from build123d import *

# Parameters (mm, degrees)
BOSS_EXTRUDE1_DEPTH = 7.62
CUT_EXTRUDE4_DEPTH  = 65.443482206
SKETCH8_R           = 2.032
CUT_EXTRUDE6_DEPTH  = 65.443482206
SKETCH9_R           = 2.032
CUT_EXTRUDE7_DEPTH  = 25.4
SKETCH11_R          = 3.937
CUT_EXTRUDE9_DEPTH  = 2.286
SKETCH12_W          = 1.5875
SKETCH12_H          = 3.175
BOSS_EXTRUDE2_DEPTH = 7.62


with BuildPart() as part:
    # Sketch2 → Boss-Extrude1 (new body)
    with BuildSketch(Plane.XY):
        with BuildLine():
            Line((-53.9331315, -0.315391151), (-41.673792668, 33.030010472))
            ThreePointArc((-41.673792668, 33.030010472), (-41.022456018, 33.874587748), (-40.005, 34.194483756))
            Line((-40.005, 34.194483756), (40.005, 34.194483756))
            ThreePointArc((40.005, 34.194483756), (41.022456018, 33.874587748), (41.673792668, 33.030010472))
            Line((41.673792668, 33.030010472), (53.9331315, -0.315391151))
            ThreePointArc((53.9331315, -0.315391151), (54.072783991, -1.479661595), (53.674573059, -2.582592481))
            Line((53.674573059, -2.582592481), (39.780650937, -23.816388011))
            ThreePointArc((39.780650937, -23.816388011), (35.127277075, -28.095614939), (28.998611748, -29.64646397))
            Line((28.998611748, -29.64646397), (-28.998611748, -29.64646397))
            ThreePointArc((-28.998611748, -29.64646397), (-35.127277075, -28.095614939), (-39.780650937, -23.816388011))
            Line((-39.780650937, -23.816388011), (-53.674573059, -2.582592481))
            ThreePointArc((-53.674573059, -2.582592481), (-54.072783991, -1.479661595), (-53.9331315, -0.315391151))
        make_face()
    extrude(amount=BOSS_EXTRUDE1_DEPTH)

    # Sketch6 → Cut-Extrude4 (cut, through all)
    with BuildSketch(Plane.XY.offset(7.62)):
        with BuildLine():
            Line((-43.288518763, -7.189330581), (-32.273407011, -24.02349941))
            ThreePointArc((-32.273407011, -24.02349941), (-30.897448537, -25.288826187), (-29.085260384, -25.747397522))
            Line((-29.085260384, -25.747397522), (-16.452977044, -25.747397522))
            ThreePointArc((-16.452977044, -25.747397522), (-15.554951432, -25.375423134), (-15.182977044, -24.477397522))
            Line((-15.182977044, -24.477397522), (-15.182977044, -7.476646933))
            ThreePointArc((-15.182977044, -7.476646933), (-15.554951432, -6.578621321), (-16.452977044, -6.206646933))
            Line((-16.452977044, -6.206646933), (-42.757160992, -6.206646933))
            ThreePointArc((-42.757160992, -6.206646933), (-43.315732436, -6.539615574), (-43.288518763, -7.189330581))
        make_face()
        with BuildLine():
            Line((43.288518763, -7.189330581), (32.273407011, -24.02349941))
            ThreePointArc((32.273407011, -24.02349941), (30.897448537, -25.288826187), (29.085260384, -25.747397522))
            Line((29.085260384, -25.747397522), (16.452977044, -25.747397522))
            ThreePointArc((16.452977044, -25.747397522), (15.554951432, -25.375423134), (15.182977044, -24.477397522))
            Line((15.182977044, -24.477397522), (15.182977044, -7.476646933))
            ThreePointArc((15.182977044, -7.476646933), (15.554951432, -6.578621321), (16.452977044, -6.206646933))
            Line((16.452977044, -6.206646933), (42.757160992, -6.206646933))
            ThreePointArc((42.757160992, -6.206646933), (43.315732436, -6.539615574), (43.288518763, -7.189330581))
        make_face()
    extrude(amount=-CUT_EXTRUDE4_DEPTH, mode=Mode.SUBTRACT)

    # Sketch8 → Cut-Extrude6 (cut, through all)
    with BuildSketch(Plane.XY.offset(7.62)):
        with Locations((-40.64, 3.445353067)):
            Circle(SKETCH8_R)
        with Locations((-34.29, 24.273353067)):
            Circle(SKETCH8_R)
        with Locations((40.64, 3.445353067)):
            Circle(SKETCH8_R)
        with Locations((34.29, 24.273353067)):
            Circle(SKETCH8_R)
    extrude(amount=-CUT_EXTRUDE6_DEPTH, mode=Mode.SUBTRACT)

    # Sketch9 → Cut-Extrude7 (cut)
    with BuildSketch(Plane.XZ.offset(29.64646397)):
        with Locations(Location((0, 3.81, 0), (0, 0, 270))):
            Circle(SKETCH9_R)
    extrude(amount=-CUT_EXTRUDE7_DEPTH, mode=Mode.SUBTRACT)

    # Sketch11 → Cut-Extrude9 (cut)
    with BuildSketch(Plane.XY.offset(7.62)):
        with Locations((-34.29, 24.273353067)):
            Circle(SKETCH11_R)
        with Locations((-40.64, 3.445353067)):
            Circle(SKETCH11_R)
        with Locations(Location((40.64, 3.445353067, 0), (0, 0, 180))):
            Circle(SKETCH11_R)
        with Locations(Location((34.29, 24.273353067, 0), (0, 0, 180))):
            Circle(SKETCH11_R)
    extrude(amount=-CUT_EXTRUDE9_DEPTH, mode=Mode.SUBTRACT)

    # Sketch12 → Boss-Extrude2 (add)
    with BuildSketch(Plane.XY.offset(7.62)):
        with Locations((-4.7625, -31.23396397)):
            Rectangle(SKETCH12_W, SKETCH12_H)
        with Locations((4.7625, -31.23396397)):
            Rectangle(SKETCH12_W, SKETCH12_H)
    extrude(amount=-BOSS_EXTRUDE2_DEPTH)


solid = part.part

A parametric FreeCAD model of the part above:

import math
import FreeCAD as App
import Part
import Sketcher
from FreeCAD import Vector
Q = App.Units.Quantity

doc = App.newDocument("Part")
body = doc.addObject("PartDesign::Body", "Body")

# Sketch on XY plane
sketch1 = body.newObject("Sketcher::SketchObject", "Sketch")
sketch1.AttachmentSupport = (doc.getObject("XY_Plane"), [""])
sketch1.MapMode = "FlatFace"
sketch1.addGeometry([
    Part.LineSegment(Vector(-41.673793, 33.03001, 0), Vector(-53.933132, -0.315391, 0)),  # 0
    Part.ArcOfCircle(Part.Circle(Vector(-51.549142, -1.191858, 0), Vector(0, 0, 1), 2.54), math.radians(159.814197), math.radians(213.197951)),  # 1
    Part.LineSegment(Vector(-53.674573, -2.582592, 0), Vector(-39.780651, -23.816388, 0)),  # 2
    Part.ArcOfCircle(Part.Circle(Vector(-28.998612, -16.76137, 0), Vector(0, 0, 1), 12.885094), math.radians(-146.802049), math.radians(-90)),  # 3
    Part.LineSegment(Vector(-28.998612, -29.646464, 0), Vector(28.998612, -29.646464, 0)),  # 4
    Part.ArcOfCircle(Part.Circle(Vector(28.998612, -16.76137, 0), Vector(0, 0, 1), 12.885094), math.radians(-90), math.radians(-33.197951)),  # 5
    Part.LineSegment(Vector(39.780651, -23.816388, 0), Vector(53.674573, -2.582592, 0)),  # 6
    Part.ArcOfCircle(Part.Circle(Vector(51.549142, -1.191858, 0), Vector(0, 0, 1), 2.54), math.radians(-33.197951), math.radians(20.185803)),  # 7
    Part.LineSegment(Vector(53.933132, -0.315391, 0), Vector(41.673793, 33.03001, 0)),  # 8
    Part.ArcOfCircle(Part.Circle(Vector(40.005, 32.416484, 0), Vector(0, 0, 1), 1.778), math.radians(20.185803), math.radians(90)),  # 9
    Part.LineSegment(Vector(40.005, 34.194484, 0), Vector(-40.005, 34.194484, 0)),  # 10
    Part.ArcOfCircle(Part.Circle(Vector(-40.005, 32.416484, 0), Vector(0, 0, 1), 1.778), math.radians(90), math.radians(159.814197)),  # 11
], False)
sketch1.addConstraint([
    Sketcher.Constraint("Tangent", 0, 2, 1, 1),
    Sketcher.Constraint("Tangent", 1, 2, 2, 1),
    Sketcher.Constraint("Tangent", 2, 2, 3, 1),
    Sketcher.Constraint("Tangent", 3, 2, 4, 1),
    Sketcher.Constraint("Tangent", 4, 2, 5, 1),
    Sketcher.Constraint("Tangent", 5, 2, 6, 1),
    Sketcher.Constraint("Tangent", 6, 2, 7, 1),
    Sketcher.Constraint("Tangent", 7, 2, 8, 1),
    Sketcher.Constraint("Tangent", 8, 2, 9, 1),
    Sketcher.Constraint("Tangent", 9, 2, 10, 1),
    Sketcher.Constraint("Tangent", 10, 2, 11, 1),
    Sketcher.Constraint("Tangent", 11, 2, 0, 1),
    Sketcher.Constraint("Horizontal", 4),
    Sketcher.Constraint("Horizontal", 10),
    Sketcher.Constraint("Equal", 3, 5),
    Sketcher.Constraint("Equal", 1, 7),
    Sketcher.Constraint("Equal", 9, 11),
    Sketcher.Constraint("Symmetric", 1, 3, 7, 3, -2),
    Sketcher.Constraint("Horizontal", 2, 2, 5, 2),
    Sketcher.Constraint("Horizontal", 0, 2, 7, 2),
    Sketcher.Constraint("Radius", 1, Q("0.1 in")),
    Sketcher.Constraint("Radius", 9, Q("0.07 in")),
    Sketcher.Constraint("DistanceX", 10, 2, 10, 1, Q("3.15 in")),
    Sketcher.Constraint("Radius", 3, Q("12.885094 mm")),
    Sketcher.Constraint("DistanceY", 1, 2, 0, 2, Q("2.267201 mm")),
    Sketcher.Constraint("DistanceY", 7, 2, 8, 2, Q("33.345402 mm")),
    Sketcher.Constraint("DistanceX", 4, 1, 4, 2, Q("57.997223 mm")),
    Sketcher.Constraint("DistanceX", 1, 3, -1, 1, Q("51.549142 mm")),
    Sketcher.Constraint("DistanceY", 3, 3, -1, 1, Q("16.76137 mm")),
])
pad1 = body.newObject("PartDesign::Pad", "Pad")
pad1.Profile = sketch1
pad1.Length = Q("0.3 in")

# Sketch on XY plane
sketch2 = body.newObject("Sketcher::SketchObject", "Sketch001")
sketch2.AttachmentSupport = (doc.getObject("XY_Plane"), [""])
sketch2.MapMode = "FlatFace"
sketch2.AttachmentOffset = App.Placement(Vector(0, 0, 0.3 * 25.4), App.Rotation())
sketch2.addGeometry([
    Part.LineSegment(Vector(-43.288519, -7.189331, 0), Vector(-32.273407, -24.023499, 0)),  # 0
    Part.ArcOfCircle(Part.Circle(Vector(-29.08526, -21.937398, 0), Vector(0, 0, 1), 3.81), math.radians(-146.802049), math.radians(-90)),  # 1
    Part.LineSegment(Vector(-29.08526, -25.747398, 0), Vector(-16.452977, -25.747398, 0)),  # 2
    Part.ArcOfCircle(Part.Circle(Vector(-16.452977, -24.477398, 0), Vector(0, 0, 1), 1.27), math.radians(-90), math.radians(0)),  # 3
    Part.LineSegment(Vector(-15.182977, -24.477398, 0), Vector(-15.182977, -7.476647, 0)),  # 4
    Part.ArcOfCircle(Part.Circle(Vector(-16.452977, -7.476647, 0), Vector(0, 0, 1), 1.27), math.radians(0), math.radians(90)),  # 5
    Part.LineSegment(Vector(-16.452977, -6.206647, 0), Vector(-42.757161, -6.206647, 0)),  # 6
    Part.ArcOfCircle(Part.Circle(Vector(-42.757161, -6.841647, 0), Vector(0, 0, 1), 0.635), math.radians(90), math.radians(213.197951)),  # 7
    Part.LineSegment(Vector(32.273407, -24.023499, 0), Vector(43.288519, -7.189331, 0)),  # 8
    Part.ArcOfCircle(Part.Circle(Vector(42.757161, -6.841647, 0), Vector(0, 0, 1), 0.635), math.radians(-33.197951), math.radians(90)),  # 9
    Part.LineSegment(Vector(42.757161, -6.206647, 0), Vector(16.452977, -6.206647, 0)),  # 10
    Part.ArcOfCircle(Part.Circle(Vector(16.452977, -7.476647, 0), Vector(0, 0, 1), 1.27), math.radians(90), math.radians(180)),  # 11
    Part.LineSegment(Vector(15.182977, -7.476647, 0), Vector(15.182977, -24.477398, 0)),  # 12
    Part.ArcOfCircle(Part.Circle(Vector(16.452977, -24.477398, 0), Vector(0, 0, 1), 1.27), math.radians(180), math.radians(270)),  # 13
    Part.LineSegment(Vector(16.452977, -25.747398, 0), Vector(29.08526, -25.747398, 0)),  # 14
    Part.ArcOfCircle(Part.Circle(Vector(29.08526, -21.937398, 0), Vector(0, 0, 1), 3.81), math.radians(-90), math.radians(-33.197951)),  # 15
], False)
sketch2.addConstraint([
    Sketcher.Constraint("Tangent", 0, 2, 1, 1),
    Sketcher.Constraint("Tangent", 1, 2, 2, 1),
    Sketcher.Constraint("Tangent", 2, 2, 3, 1),
    Sketcher.Constraint("Tangent", 3, 2, 4, 1),
    Sketcher.Constraint("Tangent", 4, 2, 5, 1),
    Sketcher.Constraint("Tangent", 5, 2, 6, 1),
    Sketcher.Constraint("Tangent", 6, 2, 7, 1),
    Sketcher.Constraint("Tangent", 7, 2, 0, 1),
    Sketcher.Constraint("Tangent", 8, 2, 9, 1),
    Sketcher.Constraint("Tangent", 9, 2, 10, 1),
    Sketcher.Constraint("Tangent", 10, 2, 11, 1),
    Sketcher.Constraint("Tangent", 11, 2, 12, 1),
    Sketcher.Constraint("Tangent", 12, 2, 13, 1),
    Sketcher.Constraint("Tangent", 13, 2, 14, 1),
    Sketcher.Constraint("Tangent", 14, 2, 15, 1),
    Sketcher.Constraint("Tangent", 15, 2, 8, 1),
    Sketcher.Constraint("Horizontal", 2),
    Sketcher.Constraint("Vertical", 4),
    Sketcher.Constraint("Horizontal", 6),
    Sketcher.Constraint("Horizontal", 10),
    Sketcher.Constraint("Vertical", 12),
    Sketcher.Constraint("Horizontal", 14),
    Sketcher.Constraint("Equal", 3, 5),
    Sketcher.Constraint("Equal", 7, 9),
    Sketcher.Constraint("Equal", 5, 11),
    Sketcher.Constraint("Equal", 11, 13),
    Sketcher.Constraint("Equal", 1, 15),
    Sketcher.Constraint("Symmetric", 7, 3, 9, 3, -2),
    Sketcher.Constraint("Symmetric", 3, 3, 13, 3, -2),
    Sketcher.Constraint("Horizontal", 7, 2, 8, 2),
    Sketcher.Constraint("Radius", 1, Q("0.15 in")),
    Sketcher.Constraint("Radius", 3, Q("0.05 in")),
    Sketcher.Constraint("Radius", 7, Q("0.025 in")),
    Sketcher.Constraint("Distance", 0, Q("20.117702 mm")),
    Sketcher.Constraint("DistanceY", 4, 1, 4, 2, Q("17.000751 mm")),
    Sketcher.Constraint("DistanceY", 0, 2, -1, 1, Q("24.023499 mm")),
    Sketcher.Constraint("DistanceX", 2, 1, 2, 2, Q("12.632283 mm")),
    Sketcher.Constraint("DistanceX", 1, 3, -1, 1, Q("29.08526 mm")),
])
pocket1 = body.newObject("PartDesign::Pocket", "Pocket")
pocket1.Profile = sketch2
pocket1.Type = "ThroughAll"

# Sketch on XY plane
sketch3 = body.newObject("Sketcher::SketchObject", "Sketch002")
sketch3.AttachmentSupport = (doc.getObject("XY_Plane"), [""])
sketch3.MapMode = "FlatFace"
sketch3.AttachmentOffset = App.Placement(Vector(0, 0, 0.3 * 25.4), App.Rotation())
sketch3.addGeometry([
    Part.Circle(Vector(-40.64, 3.445353, 0), Vector(0, 0, 1), 2.032),
    Part.Circle(Vector(-34.29, 24.273353, 0), Vector(0, 0, 1), 2.032),
    Part.Circle(Vector(40.64, 3.445353, 0), Vector(0, 0, 1), 2.032),
    Part.Circle(Vector(34.29, 24.273353, 0), Vector(0, 0, 1), 2.032),
], False)
sketch3.addConstraint([
    Sketcher.Constraint("Equal", 0, 1),
    Sketcher.Constraint("Equal", 1, 2),
    Sketcher.Constraint("Equal", 2, 3),
    Sketcher.Constraint("Symmetric", 0, 3, 2, 3, -2),
    Sketcher.Constraint("Symmetric", 1, 3, 3, 3, -2),
    Sketcher.Constraint("Diameter", 0, Q("0.16 in")),
    Sketcher.Constraint("DistanceX", 0, 3, -1, 1, Q("1.6 in")),
    Sketcher.Constraint("DistanceX", 1, 3, 3, 3, Q("2.7 in")),
    Sketcher.Constraint("DistanceY", 0, 3, 1, 3, Q("0.82 in")),
    Sketcher.Constraint("DistanceY", -1, 1, 0, 3, Q("3.445353 mm")),
])
pocket2 = body.newObject("PartDesign::Pocket", "Pocket001")
pocket2.Profile = sketch3
pocket2.Type = "ThroughAll"

# Sketch on XZ plane
sketch4 = body.newObject("Sketcher::SketchObject", "Sketch003")
sketch4.AttachmentSupport = (doc.getObject("XZ_Plane"), [""])
sketch4.MapMode = "FlatFace"
sketch4.AttachmentOffset = App.Placement(Vector(0, 0, 29.646464), App.Rotation())
sketch4.addGeometry(Part.Circle(Vector(0, 3.81, 0), Vector(0, 0, 1), 2.032), False)
sketch4.addConstraint([
    Sketcher.Constraint("PointOnObject", 0, 3, -2),
    Sketcher.Constraint("Diameter", 0, Q("0.16 in")),
    Sketcher.Constraint("DistanceY", -1, 1, 0, 3, Q("0.15 in")),
])
pocket3 = body.newObject("PartDesign::Pocket", "Pocket002")
pocket3.Profile = sketch4
pocket3.Length = Q("1 in")

# Sketch on XY plane
sketch5 = body.newObject("Sketcher::SketchObject", "Sketch004")
sketch5.AttachmentSupport = (doc.getObject("XY_Plane"), [""])
sketch5.MapMode = "FlatFace"
sketch5.AttachmentOffset = App.Placement(Vector(0, 0, 0.3 * 25.4), App.Rotation())
sketch5.addGeometry([
    Part.Circle(Vector(-34.29, 24.273353, 0), Vector(0, 0, 1), 3.937),
    Part.Circle(Vector(-40.64, 3.445353, 0), Vector(0, 0, 1), 3.937),
    Part.Circle(Vector(40.64, 3.445353, 0), Vector(0, 0, 1), 3.937),
    Part.Circle(Vector(34.29, 24.273353, 0), Vector(0, 0, 1), 3.937),
], False)
sketch5.addConstraint([
    Sketcher.Constraint("Equal", 0, 1),
    Sketcher.Constraint("Equal", 1, 2),
    Sketcher.Constraint("Equal", 2, 3),
    Sketcher.Constraint("Symmetric", 1, 3, 2, 3, -2),
    Sketcher.Constraint("Symmetric", 0, 3, 3, 3, -2),
    Sketcher.Constraint("Diameter", 0, Q("0.31 in")),
    Sketcher.Constraint("DistanceX", 1, 3, -1, 1, Q("1.6 in")),
    Sketcher.Constraint("DistanceX", 0, 3, 3, 3, Q("2.7 in")),
    Sketcher.Constraint("DistanceY", 1, 3, 0, 3, Q("0.82 in")),
    Sketcher.Constraint("DistanceY", -1, 1, 0, 3, Q("24.273353 mm")),
])
pocket4 = body.newObject("PartDesign::Pocket", "Pocket003")
pocket4.Profile = sketch5
pocket4.Length = Q("0.09 in")

# Sketch on XY plane
sketch6 = body.newObject("Sketcher::SketchObject", "Sketch005")
sketch6.AttachmentSupport = (doc.getObject("XY_Plane"), [""])
sketch6.MapMode = "FlatFace"
sketch6.AttachmentOffset = App.Placement(Vector(0, 0, 0.3 * 25.4), App.Rotation())
sketch6.addGeometry([
    Part.LineSegment(Vector(-5.55625, -29.646464, 0), Vector(-5.55625, -32.821464, 0)),  # 0
    Part.LineSegment(Vector(-5.55625, -32.821464, 0), Vector(-3.96875, -32.821464, 0)),  # 1
    Part.LineSegment(Vector(-3.96875, -32.821464, 0), Vector(-3.96875, -29.646464, 0)),  # 2
    Part.LineSegment(Vector(-3.96875, -29.646464, 0), Vector(-5.55625, -29.646464, 0)),  # 3
    Part.LineSegment(Vector(3.96875, -29.646464, 0), Vector(3.96875, -32.821464, 0)),  # 4
    Part.LineSegment(Vector(3.96875, -32.821464, 0), Vector(5.55625, -32.821464, 0)),  # 5
    Part.LineSegment(Vector(5.55625, -32.821464, 0), Vector(5.55625, -29.646464, 0)),  # 6
    Part.LineSegment(Vector(5.55625, -29.646464, 0), Vector(3.96875, -29.646464, 0)),  # 7
], False)
sketch6.addConstraint([
    Sketcher.Constraint("Coincident", 0, 2, 1, 1),
    Sketcher.Constraint("Coincident", 1, 2, 2, 1),
    Sketcher.Constraint("Coincident", 2, 2, 3, 1),
    Sketcher.Constraint("Coincident", 3, 2, 0, 1),
    Sketcher.Constraint("Coincident", 4, 2, 5, 1),
    Sketcher.Constraint("Coincident", 5, 2, 6, 1),
    Sketcher.Constraint("Coincident", 6, 2, 7, 1),
    Sketcher.Constraint("Coincident", 7, 2, 4, 1),
    Sketcher.Constraint("Vertical", 0),
    Sketcher.Constraint("Horizontal", 1),
    Sketcher.Constraint("Vertical", 2),
    Sketcher.Constraint("Horizontal", 3),
    Sketcher.Constraint("Vertical", 4),
    Sketcher.Constraint("Horizontal", 5),
    Sketcher.Constraint("Vertical", 6),
    Sketcher.Constraint("Horizontal", 7),
    Sketcher.Constraint("Symmetric", 1, 2, 4, 2, -2),
    Sketcher.Constraint("Symmetric", 3, 2, 6, 2, -2),
    Sketcher.Constraint("DistanceX", 1, 1, 1, 2, Q("0.0625 in")),
    Sketcher.Constraint("DistanceY", 0, 2, 0, 1, Q("0.125 in")),
    Sketcher.Constraint("DistanceX", 0, 2, -1, 1, Q("0.21875 in")),
    Sketcher.Constraint("DistanceY", 0, 2, -1, 1, Q("32.821464 mm")),
])
pad2 = body.newObject("PartDesign::Pad", "Pad001")
pad2.Profile = sketch6
pad2.Length = Q("0.3 in")
pad2.Reversed = True

doc.recompute()
